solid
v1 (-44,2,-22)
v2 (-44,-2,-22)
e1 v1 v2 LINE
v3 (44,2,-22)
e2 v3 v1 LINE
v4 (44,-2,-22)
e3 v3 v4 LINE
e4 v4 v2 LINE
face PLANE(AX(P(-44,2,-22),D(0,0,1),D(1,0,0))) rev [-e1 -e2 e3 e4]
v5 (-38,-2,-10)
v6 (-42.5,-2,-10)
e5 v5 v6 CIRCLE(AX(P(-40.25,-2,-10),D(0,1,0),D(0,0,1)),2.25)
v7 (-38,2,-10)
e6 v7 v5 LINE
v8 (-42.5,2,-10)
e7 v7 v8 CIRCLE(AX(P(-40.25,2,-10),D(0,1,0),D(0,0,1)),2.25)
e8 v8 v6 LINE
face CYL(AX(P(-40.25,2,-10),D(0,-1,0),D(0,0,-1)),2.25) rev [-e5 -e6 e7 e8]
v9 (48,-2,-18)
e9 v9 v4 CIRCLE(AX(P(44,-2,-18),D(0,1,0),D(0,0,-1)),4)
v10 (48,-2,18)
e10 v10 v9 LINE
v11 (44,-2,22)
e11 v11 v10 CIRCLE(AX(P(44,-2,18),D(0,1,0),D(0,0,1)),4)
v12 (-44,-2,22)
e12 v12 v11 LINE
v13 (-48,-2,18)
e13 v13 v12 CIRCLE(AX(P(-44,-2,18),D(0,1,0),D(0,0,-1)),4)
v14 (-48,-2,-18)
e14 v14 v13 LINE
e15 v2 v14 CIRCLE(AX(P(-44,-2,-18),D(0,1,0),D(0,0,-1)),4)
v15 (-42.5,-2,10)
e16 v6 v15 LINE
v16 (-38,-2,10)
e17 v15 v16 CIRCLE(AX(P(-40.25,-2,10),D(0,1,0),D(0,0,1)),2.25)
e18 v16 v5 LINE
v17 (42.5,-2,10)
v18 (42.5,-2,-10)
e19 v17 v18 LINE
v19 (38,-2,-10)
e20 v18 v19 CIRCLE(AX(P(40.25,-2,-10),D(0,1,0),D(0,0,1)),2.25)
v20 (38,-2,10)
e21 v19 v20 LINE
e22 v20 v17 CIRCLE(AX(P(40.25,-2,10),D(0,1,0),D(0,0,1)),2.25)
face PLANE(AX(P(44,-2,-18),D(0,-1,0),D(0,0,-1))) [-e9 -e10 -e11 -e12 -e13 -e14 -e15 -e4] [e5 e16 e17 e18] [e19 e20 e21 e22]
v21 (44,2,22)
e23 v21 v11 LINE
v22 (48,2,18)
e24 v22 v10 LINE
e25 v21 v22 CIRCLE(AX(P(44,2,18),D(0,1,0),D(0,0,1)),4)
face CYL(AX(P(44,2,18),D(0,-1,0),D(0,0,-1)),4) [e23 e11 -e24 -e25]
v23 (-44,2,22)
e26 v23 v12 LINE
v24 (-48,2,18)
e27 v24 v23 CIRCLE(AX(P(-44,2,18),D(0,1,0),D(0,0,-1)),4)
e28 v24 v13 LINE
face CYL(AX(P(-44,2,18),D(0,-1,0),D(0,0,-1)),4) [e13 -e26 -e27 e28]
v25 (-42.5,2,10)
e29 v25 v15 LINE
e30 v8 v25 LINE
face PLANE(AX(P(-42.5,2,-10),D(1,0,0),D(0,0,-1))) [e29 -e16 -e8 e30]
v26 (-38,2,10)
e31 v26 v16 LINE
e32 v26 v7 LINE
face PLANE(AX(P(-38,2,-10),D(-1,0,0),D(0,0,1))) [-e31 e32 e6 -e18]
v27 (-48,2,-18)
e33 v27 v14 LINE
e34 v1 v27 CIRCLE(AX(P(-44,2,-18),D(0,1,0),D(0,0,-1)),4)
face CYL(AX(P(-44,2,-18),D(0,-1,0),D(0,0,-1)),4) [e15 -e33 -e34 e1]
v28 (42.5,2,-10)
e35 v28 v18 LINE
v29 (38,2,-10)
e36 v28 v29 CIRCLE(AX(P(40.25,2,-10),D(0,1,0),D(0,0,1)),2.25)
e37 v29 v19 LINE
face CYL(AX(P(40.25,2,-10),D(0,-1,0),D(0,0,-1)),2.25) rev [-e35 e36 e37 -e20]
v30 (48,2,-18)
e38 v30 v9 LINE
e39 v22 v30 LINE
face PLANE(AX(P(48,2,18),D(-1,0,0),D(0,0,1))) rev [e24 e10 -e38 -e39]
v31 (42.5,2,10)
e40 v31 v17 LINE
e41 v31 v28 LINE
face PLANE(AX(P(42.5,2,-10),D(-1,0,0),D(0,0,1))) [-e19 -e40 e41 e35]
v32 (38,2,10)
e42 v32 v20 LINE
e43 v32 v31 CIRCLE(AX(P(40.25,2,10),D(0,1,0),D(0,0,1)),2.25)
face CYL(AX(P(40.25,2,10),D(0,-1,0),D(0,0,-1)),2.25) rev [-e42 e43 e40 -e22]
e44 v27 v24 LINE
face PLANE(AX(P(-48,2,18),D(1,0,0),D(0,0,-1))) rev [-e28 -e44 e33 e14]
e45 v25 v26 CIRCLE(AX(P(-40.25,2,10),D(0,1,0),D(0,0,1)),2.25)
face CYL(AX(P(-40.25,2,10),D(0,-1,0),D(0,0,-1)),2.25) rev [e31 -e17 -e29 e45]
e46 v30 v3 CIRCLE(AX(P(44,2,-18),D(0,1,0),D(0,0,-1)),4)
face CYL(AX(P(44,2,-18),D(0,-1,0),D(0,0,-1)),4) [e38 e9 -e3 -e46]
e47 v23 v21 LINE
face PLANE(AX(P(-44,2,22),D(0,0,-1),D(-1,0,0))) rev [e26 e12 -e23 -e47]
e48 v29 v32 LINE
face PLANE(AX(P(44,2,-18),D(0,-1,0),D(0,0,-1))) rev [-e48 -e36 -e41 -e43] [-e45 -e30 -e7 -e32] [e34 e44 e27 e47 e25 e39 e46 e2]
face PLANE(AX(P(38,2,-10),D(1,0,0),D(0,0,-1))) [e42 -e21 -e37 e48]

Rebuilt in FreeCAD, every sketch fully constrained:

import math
import FreeCAD as App
import Part
import Sketcher

V = App.Vector
Q = App.Units.Quantity

doc = App.newDocument("Part")
body = doc.addObject("PartDesign::Body", "Body")

sketch1 = body.newObject("Sketcher::SketchObject", "Sketch")
sketch1.AttachmentSupport = (doc.getObject("XZ_Plane"), [""])
sketch1.MapMode = "FlatFace"
sketch1.addGeometry([
    Part.LineSegment(V(-44, 22, 0), V(44, 22, 0)),
    Part.ArcOfCircle(Part.Circle(V(44, 18, 0), V(0, 0, 1), 4), math.radians(0), math.radians(90)),
    Part.LineSegment(V(48, 18, 0), V(48, -18, 0)),
    Part.ArcOfCircle(Part.Circle(V(44, -18, 0), V(0, 0, 1), 4), math.radians(-90), math.radians(0)),
    Part.LineSegment(V(44, -22, 0), V(-44, -22, 0)),
    Part.ArcOfCircle(Part.Circle(V(-44, -18, 0), V(0, 0, 1), 4), math.radians(180), math.radians(270)),
    Part.LineSegment(V(-48, -18, 0), V(-48, 18, 0)),
    Part.ArcOfCircle(Part.Circle(V(-44, 18, 0), V(0, 0, 1), 4), math.radians(90), math.radians(180)),
    Part.ArcOfCircle(Part.Circle(V(-40.2, -10, 0), V(0, 0, 1), 2.2), math.radians(180), math.radians(360)),
    Part.LineSegment(V(-38, -10, 0), V(-38, 10, 0)),
    Part.ArcOfCircle(Part.Circle(V(-40.2, 10, 0), V(0, 0, 1), 2.2), math.radians(0), math.radians(180)),
    Part.LineSegment(V(-42.5, 10, 0), V(-42.5, -10, 0)),
    Part.ArcOfCircle(Part.Circle(V(40.2, -10, 0), V(0, 0, 1), 2.2), math.radians(180), math.radians(360)),
    Part.LineSegment(V(42.5, -10, 0), V(42.5, 10, 0)),
    Part.ArcOfCircle(Part.Circle(V(40.2, 10, 0), V(0, 0, 1), 2.2), math.radians(0), math.radians(180)),
    Part.LineSegment(V(38, 10, 0), V(38, -10, 0)),
], False)
sketch1.addConstraint([
    Sketcher.Constraint("Tangent", 0, 2, 1, 2),
    Sketcher.Constraint("Tangent", 1, 1, 2, 1),
    Sketcher.Constraint("Tangent", 2, 2, 3, 2),
    Sketcher.Constraint("Tangent", 3, 1, 4, 1),
    Sketcher.Constraint("Tangent", 4, 2, 5, 2),
    Sketcher.Constraint("Tangent", 5, 1, 6, 1),
    Sketcher.Constraint("Tangent", 6, 2, 7, 2),
    Sketcher.Constraint("Tangent", 7, 1, 0, 1),
    Sketcher.Constraint("Tangent", 8, 2, 9, 1),
    Sketcher.Constraint("Tangent", 9, 2, 10, 1),
    Sketcher.Constraint("Tangent", 10, 2, 11, 1),
    Sketcher.Constraint("Tangent", 11, 2, 8, 1),
    Sketcher.Constraint("Tangent", 12, 2, 13, 1),
    Sketcher.Constraint("Tangent", 13, 2, 14, 1),
    Sketcher.Constraint("Tangent", 14, 2, 15, 1),
    Sketcher.Constraint("Tangent", 15, 2, 12, 1),
    Sketcher.Constraint("Horizontal", 0),
    Sketcher.Constraint("Vertical", 2),
    Sketcher.Constraint("Horizontal", 4),
    Sketcher.Constraint("Vertical", 6),
    Sketcher.Constraint("Vertical", 9),
    Sketcher.Constraint("Vertical", 11),
    Sketcher.Constraint("Vertical", 13),
    Sketcher.Constraint("Vertical", 15),
    Sketcher.Constraint("Equal", 1, 3),
    Sketcher.Constraint("Equal", 3, 5),
    Sketcher.Constraint("Equal", 5, 7),
    Sketcher.Constraint("Equal", 10, 12),
    Sketcher.Constraint("Symmetric", 1, 3, 5, 3, -1, 1),
    Sketcher.Constraint("Symmetric", 10, 3, 12, 3, -1, 1),
    Sketcher.Constraint("Horizontal", 8, 3, 12, 3),
    Sketcher.Constraint("Horizontal", 10, 3, 14, 3),
    Sketcher.Constraint("Radius", 1, Q("4 mm")),
    Sketcher.Constraint("DistanceX", 0, 1, 0, 2, Q("88 mm")),
    Sketcher.Constraint("DistanceY", 2, 2, 2, 1, Q("36 mm")),
    Sketcher.Constraint("DistanceY", 9, 1, 9, 2, Q("20 mm")),
    Sketcher.Constraint("Radius", 8, Q("2.25 mm")),
    Sketcher.Constraint("DistanceX", 8, 2, -1, 1, Q("38 mm")),
])
pad1 = body.newObject("PartDesign::Pad", "Pad")
pad1.Profile = sketch1
pad1.Length = 4
pad1.Midplane = True

doc.recompute()
